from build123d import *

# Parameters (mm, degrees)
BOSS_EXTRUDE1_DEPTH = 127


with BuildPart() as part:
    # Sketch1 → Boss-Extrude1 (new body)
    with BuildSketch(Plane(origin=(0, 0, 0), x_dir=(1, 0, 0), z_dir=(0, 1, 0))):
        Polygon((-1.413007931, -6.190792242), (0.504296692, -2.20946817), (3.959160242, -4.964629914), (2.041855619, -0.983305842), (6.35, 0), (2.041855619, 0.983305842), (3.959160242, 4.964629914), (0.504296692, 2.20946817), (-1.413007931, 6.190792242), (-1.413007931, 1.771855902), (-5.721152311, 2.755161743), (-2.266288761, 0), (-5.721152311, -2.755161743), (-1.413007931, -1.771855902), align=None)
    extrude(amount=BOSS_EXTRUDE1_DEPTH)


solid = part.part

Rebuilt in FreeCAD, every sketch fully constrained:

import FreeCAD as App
import Part
import Sketcher

V = App.Vector
Q = App.Units.Quantity


def add_polygon(sketch, points):
    """Adds a closed chain of lines whose ends are joined by coincident constraints."""
    first, n = sketch.GeometryCount, len(points)
    for a, b in zip(points, points[1:] + points[:1]):
        sketch.addGeometry(Part.LineSegment(App.Vector(*a, 0), App.Vector(*b, 0)), False)
    for i in range(n):
        sketch.addConstraint(Sketcher.Constraint("Coincident", first + i, 2, first + (i + 1) % n, 1))

doc = App.newDocument("Part")
body = doc.addObject("PartDesign::Body", "Body")

# Sketch on XZ plane
sketch1 = body.newObject("Sketcher::SketchObject", "Sketch")
sketch1.AttachmentSupport = (doc.getObject("XZ_Plane"), [""])
sketch1.MapMode = "FlatFace"
add_polygon(sketch1, [(-1.4, 6.2), (0.5, 2.2), (4, 5), (2, 1), (6.3, 0), (2, -1), (4, -5), (0.5, -2.2), (-1.4, -6.2), (-1.4, -1.8), (-5.7, -2.8), (-2.3, 0), (-5.7, 2.8), (-1.4, 1.8)])  # lines 0-13
sketch1.addConstraint(Sketcher.Constraint("Vertical", 8))
sketch1.addConstraint(Sketcher.Constraint("Vertical", 13))
sketch1.addConstraint(Sketcher.Constraint("Symmetric", 2, 2, 4, 2, -1))
sketch1.addConstraint(Sketcher.Constraint("Symmetric", 1, 2, 5, 2, -1))
sketch1.addConstraint(Sketcher.Constraint("Symmetric", 0, 2, 6, 2, -1))
sketch1.addConstraint(Sketcher.Constraint("Symmetric", 9, 2, 11, 2, -1))
sketch1.addConstraint(Sketcher.Constraint("Symmetric", 8, 2, 12, 2, -1))
sketch1.addConstraint(Sketcher.Constraint("PointOnObject", 3, 2, -1))
sketch1.addConstraint(Sketcher.Constraint("PointOnObject", 10, 2, -1))
sketch1.addConstraint(Sketcher.Constraint("Parallel", 0, 5))
sketch1.addConstraint(Sketcher.Constraint("Parallel", 2, 7))
sketch1.addConstraint(Sketcher.Constraint("Parallel", 4, 9))
sketch1.addConstraint(Sketcher.Constraint("Parallel", 1, 10))
sketch1.addConstraint(Sketcher.Constraint("Equal", 0, 1))
sketch1.addConstraint(Sketcher.Constraint("Equal", 1, 2))
sketch1.addConstraint(Sketcher.Constraint("Equal", 2, 3))
sketch1.addConstraint(Sketcher.Constraint("Equal", 7, 9))
sketch1.addConstraint(Sketcher.Constraint("Equal", 9, 10))
sketch1.addConstraint(Sketcher.Constraint("DistanceX", -1, 1, 3, 2, Q("0.25 in")))
sketch1.addConstraint(Sketcher.Constraint("DistanceY", 5, 2, 0, 2, 7.174098))
sketch1.addConstraint(Sketcher.Constraint("DistanceY", 8, 1, 8, 2, 4.418936))
sketch1.addConstraint(Sketcher.Constraint("DistanceX", -1, 1, 1, 2, 3.95916))
sketch1.addConstraint(Sketcher.Constraint("DistanceX", 10, 2, -1, 1, 2.266289))
pad1 = body.newObject("PartDesign::Pad", "Pad")
pad1.Profile = sketch1
pad1.Length = Q("5 in")
pad1.Reversed = True

doc.recompute()
